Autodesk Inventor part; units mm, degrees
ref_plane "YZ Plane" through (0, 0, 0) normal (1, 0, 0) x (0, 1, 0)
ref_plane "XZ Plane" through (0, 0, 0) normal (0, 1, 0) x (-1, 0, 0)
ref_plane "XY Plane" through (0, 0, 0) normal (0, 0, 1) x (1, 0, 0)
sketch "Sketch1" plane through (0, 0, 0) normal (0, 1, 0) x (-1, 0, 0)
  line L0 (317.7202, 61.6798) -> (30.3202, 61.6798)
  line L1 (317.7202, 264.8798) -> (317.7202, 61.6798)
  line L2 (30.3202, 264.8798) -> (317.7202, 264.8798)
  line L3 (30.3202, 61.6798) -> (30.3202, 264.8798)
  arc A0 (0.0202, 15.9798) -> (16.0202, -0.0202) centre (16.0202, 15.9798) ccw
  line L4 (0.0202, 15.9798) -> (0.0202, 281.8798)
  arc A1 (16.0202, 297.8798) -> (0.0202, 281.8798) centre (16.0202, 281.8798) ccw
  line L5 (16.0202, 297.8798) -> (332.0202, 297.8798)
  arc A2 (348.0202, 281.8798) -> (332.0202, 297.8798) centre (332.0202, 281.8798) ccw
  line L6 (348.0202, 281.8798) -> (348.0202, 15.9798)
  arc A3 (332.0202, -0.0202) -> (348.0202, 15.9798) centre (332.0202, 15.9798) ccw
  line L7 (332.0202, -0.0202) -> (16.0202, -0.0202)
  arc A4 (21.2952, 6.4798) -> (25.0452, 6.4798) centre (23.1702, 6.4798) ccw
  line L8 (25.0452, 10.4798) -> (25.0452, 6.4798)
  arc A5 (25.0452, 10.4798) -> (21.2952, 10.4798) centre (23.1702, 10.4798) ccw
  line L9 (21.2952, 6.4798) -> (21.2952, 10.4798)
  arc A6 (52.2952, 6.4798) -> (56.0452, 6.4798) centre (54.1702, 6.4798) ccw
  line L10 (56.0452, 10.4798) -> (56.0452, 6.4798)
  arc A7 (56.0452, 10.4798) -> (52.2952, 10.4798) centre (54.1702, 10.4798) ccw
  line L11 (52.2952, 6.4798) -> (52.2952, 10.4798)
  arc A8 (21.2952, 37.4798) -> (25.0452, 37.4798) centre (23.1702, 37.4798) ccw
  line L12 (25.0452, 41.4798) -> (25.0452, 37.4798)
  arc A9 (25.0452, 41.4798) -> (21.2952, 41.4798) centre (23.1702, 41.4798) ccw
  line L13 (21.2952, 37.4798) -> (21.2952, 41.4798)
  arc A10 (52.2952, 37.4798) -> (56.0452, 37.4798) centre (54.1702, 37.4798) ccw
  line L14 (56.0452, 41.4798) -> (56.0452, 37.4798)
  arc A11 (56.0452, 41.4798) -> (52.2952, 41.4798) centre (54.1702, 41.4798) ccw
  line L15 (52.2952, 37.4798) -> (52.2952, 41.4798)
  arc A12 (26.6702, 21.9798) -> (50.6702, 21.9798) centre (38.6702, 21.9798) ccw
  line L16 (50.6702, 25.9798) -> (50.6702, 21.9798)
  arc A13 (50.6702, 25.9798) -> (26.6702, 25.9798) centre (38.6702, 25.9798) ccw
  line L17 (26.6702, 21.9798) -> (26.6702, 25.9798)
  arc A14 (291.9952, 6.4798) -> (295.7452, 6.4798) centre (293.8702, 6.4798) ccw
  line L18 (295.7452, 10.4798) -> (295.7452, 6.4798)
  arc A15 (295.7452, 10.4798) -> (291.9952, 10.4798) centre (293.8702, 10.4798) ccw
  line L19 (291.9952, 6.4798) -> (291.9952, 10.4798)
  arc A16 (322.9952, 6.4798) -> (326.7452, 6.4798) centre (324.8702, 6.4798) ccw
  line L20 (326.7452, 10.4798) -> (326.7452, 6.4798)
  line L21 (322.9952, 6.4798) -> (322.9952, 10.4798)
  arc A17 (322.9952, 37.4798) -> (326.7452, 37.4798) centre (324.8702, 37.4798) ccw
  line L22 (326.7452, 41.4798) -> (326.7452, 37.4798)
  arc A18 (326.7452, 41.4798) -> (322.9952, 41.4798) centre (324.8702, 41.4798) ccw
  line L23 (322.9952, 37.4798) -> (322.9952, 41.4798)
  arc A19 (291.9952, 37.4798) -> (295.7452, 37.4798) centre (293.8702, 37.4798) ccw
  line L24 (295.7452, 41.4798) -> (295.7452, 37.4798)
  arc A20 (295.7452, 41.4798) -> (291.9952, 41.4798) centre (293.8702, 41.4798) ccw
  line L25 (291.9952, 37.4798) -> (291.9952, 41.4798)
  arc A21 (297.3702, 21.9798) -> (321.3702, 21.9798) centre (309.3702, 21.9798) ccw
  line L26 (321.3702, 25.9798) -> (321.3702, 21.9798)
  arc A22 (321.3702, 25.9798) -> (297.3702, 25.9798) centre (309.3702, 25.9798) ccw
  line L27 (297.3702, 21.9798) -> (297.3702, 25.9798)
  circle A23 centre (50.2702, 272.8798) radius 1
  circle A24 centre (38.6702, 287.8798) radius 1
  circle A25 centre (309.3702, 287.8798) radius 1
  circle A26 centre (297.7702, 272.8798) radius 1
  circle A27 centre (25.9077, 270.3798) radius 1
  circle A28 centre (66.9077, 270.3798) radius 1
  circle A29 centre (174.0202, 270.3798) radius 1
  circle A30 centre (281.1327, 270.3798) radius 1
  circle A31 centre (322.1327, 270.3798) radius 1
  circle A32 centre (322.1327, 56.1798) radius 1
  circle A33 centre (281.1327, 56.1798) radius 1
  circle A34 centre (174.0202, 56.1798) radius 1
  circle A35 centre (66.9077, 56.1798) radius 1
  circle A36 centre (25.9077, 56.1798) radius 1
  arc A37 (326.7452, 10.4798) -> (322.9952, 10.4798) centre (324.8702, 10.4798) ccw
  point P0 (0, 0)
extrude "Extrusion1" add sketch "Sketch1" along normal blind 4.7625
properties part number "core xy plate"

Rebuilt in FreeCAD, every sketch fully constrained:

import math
import FreeCAD as App
import Part
import Sketcher
from FreeCAD import Vector

doc = App.newDocument("Part")
body = doc.addObject("PartDesign::Body", "Body")

# Sketch on XZ plane
sketch1 = body.newObject("Sketcher::SketchObject", "Sketch")
sketch1.AttachmentSupport = (doc.getObject("XZ_Plane"), [""])
sketch1.MapMode = "FlatFace"
sketch1.addGeometry([
    Part.LineSegment(Vector(0, 281.9, 0), Vector(0, 16, 0)),  # 0
    Part.ArcOfCircle(Part.Circle(Vector(-16, 16, 0), Vector(0, 0, 1), 16), math.radians(-90), math.radians(0)),  # 1
    Part.LineSegment(Vector(-16, 0, 0), Vector(-332, 0, 0)),  # 2
    Part.ArcOfCircle(Part.Circle(Vector(-332, 16, 0), Vector(0, 0, 1), 16), math.radians(180), math.radians(270)),  # 3
    Part.LineSegment(Vector(-348, 16, 0), Vector(-348, 281.9, 0)),  # 4
    Part.ArcOfCircle(Part.Circle(Vector(-332, 281.9, 0), Vector(0, 0, 1), 16), math.radians(90), math.radians(180)),  # 5
    Part.LineSegment(Vector(-332, 297.9, 0), Vector(-16, 297.9, 0)),  # 6
    Part.ArcOfCircle(Part.Circle(Vector(-16, 281.9, 0), Vector(0, 0, 1), 16), math.radians(0), math.radians(90)),  # 7
    Part.ArcOfCircle(Part.Circle(Vector(-23.2, 6.5, 0), Vector(0, 0, 1), 1.9), math.radians(180), math.radians(360)),  # 8
    Part.LineSegment(Vector(-21.3, 6.5, 0), Vector(-21.3, 10.5, 0)),  # 9
    Part.ArcOfCircle(Part.Circle(Vector(-23.2, 10.5, 0), Vector(0, 0, 1), 1.9), math.radians(0), math.radians(180)),  # 10
    Part.LineSegment(Vector(-25, 10.5, 0), Vector(-25, 6.5, 0)),  # 11
    Part.ArcOfCircle(Part.Circle(Vector(-38.7, 22, 0), Vector(0, 0, 1), 12), math.radians(180), math.radians(360)),  # 12
    Part.LineSegment(Vector(-26.7, 22, 0), Vector(-26.7, 26, 0)),  # 13
    Part.ArcOfCircle(Part.Circle(Vector(-38.7, 26, 0), Vector(0, 0, 1), 12), math.radians(0), math.radians(180)),  # 14
    Part.LineSegment(Vector(-50.7, 26, 0), Vector(-50.7, 22, 0)),  # 15
    Part.ArcOfCircle(Part.Circle(Vector(-54.2, 6.5, 0), Vector(0, 0, 1), 1.9), math.radians(180), math.radians(360)),  # 16
    Part.LineSegment(Vector(-52.3, 6.5, 0), Vector(-52.3, 10.5, 0)),  # 17
    Part.ArcOfCircle(Part.Circle(Vector(-54.2, 10.5, 0), Vector(0, 0, 1), 1.9), math.radians(0), math.radians(180)),  # 18
    Part.LineSegment(Vector(-56, 10.5, 0), Vector(-56, 6.5, 0)),  # 19
    Part.ArcOfCircle(Part.Circle(Vector(-23.2, 37.5, 0), Vector(0, 0, 1), 1.9), math.radians(180), math.radians(360)),  # 20
    Part.LineSegment(Vector(-21.3, 37.5, 0), Vector(-21.3, 41.5, 0)),  # 21
    Part.ArcOfCircle(Part.Circle(Vector(-23.2, 41.5, 0), Vector(0, 0, 1), 1.9), math.radians(0), math.radians(180)),  # 22
    Part.LineSegment(Vector(-25, 41.5, 0), Vector(-25, 37.5, 0)),  # 23
    Part.Circle(Vector(-25.9, 56.2, 0), Vector(0, 0, 1), 1),  # 24
    Part.ArcOfCircle(Part.Circle(Vector(-54.2, 37.5, 0), Vector(0, 0, 1), 1.9), math.radians(180), math.radians(360)),  # 25
    Part.LineSegment(Vector(-52.3, 37.5, 0), Vector(-52.3, 41.5, 0)),  # 26
    Part.ArcOfCircle(Part.Circle(Vector(-54.2, 41.5, 0), Vector(0, 0, 1), 1.9), math.radians(0), math.radians(180)),  # 27
    Part.LineSegment(Vector(-56, 41.5, 0), Vector(-56, 37.5, 0)),  # 28
    Part.Circle(Vector(-66.9, 56.2, 0), Vector(0, 0, 1), 1),  # 29
    Part.Circle(Vector(-174, 56.2, 0), Vector(0, 0, 1), 1),  # 30
    Part.ArcOfCircle(Part.Circle(Vector(-293.9, 6.5, 0), Vector(0, 0, 1), 1.9), math.radians(180), math.radians(360)),  # 31
    Part.LineSegment(Vector(-292, 6.5, 0), Vector(-292, 10.5, 0)),  # 32
    Part.ArcOfCircle(Part.Circle(Vector(-293.9, 10.5, 0), Vector(0, 0, 1), 1.9), math.radians(0), math.radians(180)),  # 33
    Part.LineSegment(Vector(-295.7, 10.5, 0), Vector(-295.7, 6.5, 0)),  # 34
    Part.ArcOfCircle(Part.Circle(Vector(-324.9, 6.5, 0), Vector(0, 0, 1), 1.9), math.radians(180), math.radians(360)),  # 35
    Part.LineSegment(Vector(-323, 6.5, 0), Vector(-323, 10.5, 0)),  # 36
    Part.ArcOfCircle(Part.Circle(Vector(-324.9, 10.5, 0), Vector(0, 0, 1), 1.9), math.radians(0), math.radians(180)),  # 37
    Part.LineSegment(Vector(-326.7, 10.5, 0), Vector(-326.7, 6.5, 0)),  # 38
    Part.ArcOfCircle(Part.Circle(Vector(-309.4, 22, 0), Vector(0, 0, 1), 12), math.radians(180), math.radians(360)),  # 39
    Part.LineSegment(Vector(-297.4, 22, 0), Vector(-297.4, 26, 0)),  # 40
    Part.ArcOfCircle(Part.Circle(Vector(-309.4, 26, 0), Vector(0, 0, 1), 12), math.radians(0), math.radians(180)),  # 41
    Part.LineSegment(Vector(-321.4, 26, 0), Vector(-321.4, 22, 0)),  # 42
    Part.ArcOfCircle(Part.Circle(Vector(-293.9, 37.5, 0), Vector(0, 0, 1), 1.9), math.radians(180), math.radians(360)),  # 43
    Part.LineSegment(Vector(-292, 37.5, 0), Vector(-292, 41.5, 0)),  # 44
    Part.ArcOfCircle(Part.Circle(Vector(-293.9, 41.5, 0), Vector(0, 0, 1), 1.9), math.radians(0), math.radians(180)),  # 45
    Part.LineSegment(Vector(-295.7, 41.5, 0), Vector(-295.7, 37.5, 0)),  # 46
    Part.Circle(Vector(-281.1, 56.2, 0), Vector(0, 0, 1), 1),  # 47
    Part.ArcOfCircle(Part.Circle(Vector(-324.9, 37.5, 0), Vector(0, 0, 1), 1.9), math.radians(180), math.radians(360)),  # 48
    Part.LineSegment(Vector(-323, 37.5, 0), Vector(-323, 41.5, 0)),  # 49
    Part.ArcOfCircle(Part.Circle(Vector(-324.9, 41.5, 0), Vector(0, 0, 1), 1.9), math.radians(0), math.radians(180)),  # 50
    Part.LineSegment(Vector(-326.7, 41.5, 0), Vector(-326.7, 37.5, 0)),  # 51
    Part.Circle(Vector(-322.1, 56.2, 0), Vector(0, 0, 1), 1),  # 52
    Part.Circle(Vector(-25.9, 270.4, 0), Vector(0, 0, 1), 1),  # 53
    Part.Circle(Vector(-38.7, 287.9, 0), Vector(0, 0, 1), 1),  # 54
    Part.Circle(Vector(-50.3, 272.9, 0), Vector(0, 0, 1), 1),  # 55
    Part.Circle(Vector(-66.9, 270.4, 0), Vector(0, 0, 1), 1),  # 56
    Part.LineSegment(Vector(-317.7, 264.9, 0), Vector(-317.7, 61.7, 0)),  # 57
    Part.LineSegment(Vector(-317.7, 61.7, 0), Vector(-30.3, 61.7, 0)),  # 58
    Part.LineSegment(Vector(-30.3, 61.7, 0), Vector(-30.3, 264.9, 0)),  # 59
    Part.LineSegment(Vector(-30.3, 264.9, 0), Vector(-317.7, 264.9, 0)),  # 60
    Part.Circle(Vector(-174, 270.4, 0), Vector(0, 0, 1), 1),  # 61
    Part.Circle(Vector(-281.1, 270.4, 0), Vector(0, 0, 1), 1),  # 62
    Part.Circle(Vector(-297.8, 272.9, 0), Vector(0, 0, 1), 1),  # 63
    Part.Circle(Vector(-322.1, 270.4, 0), Vector(0, 0, 1), 1),  # 64
    Part.Circle(Vector(-309.4, 287.9, 0), Vector(0, 0, 1), 1),  # 65
], False)
sketch1.addConstraint([
    Sketcher.Constraint("Tangent", 0, 2, 1, 2),
    Sketcher.Constraint("Tangent", 1, 1, 2, 1),
    Sketcher.Constraint("Tangent", 2, 2, 3, 2),
    Sketcher.Constraint("Tangent", 3, 1, 4, 1),
    Sketcher.Constraint("Tangent", 4, 2, 5, 2),
    Sketcher.Constraint("Tangent", 5, 1, 6, 1),
    Sketcher.Constraint("Tangent", 6, 2, 7, 2),
    Sketcher.Constraint("Tangent", 7, 1, 0, 1),
    Sketcher.Constraint("Tangent", 8, 2, 9, 1),
    Sketcher.Constraint("Tangent", 9, 2, 10, 1),
    Sketcher.Constraint("Tangent", 10, 2, 11, 1),
    Sketcher.Constraint("Tangent", 11, 2, 8, 1),
    Sketcher.Constraint("Tangent", 12, 2, 13, 1),
    Sketcher.Constraint("Tangent", 13, 2, 14, 1),
    Sketcher.Constraint("Tangent", 14, 2, 15, 1),
    Sketcher.Constraint("Tangent", 15, 2, 12, 1),
    Sketcher.Constraint("Tangent", 16, 2, 17, 1),
    Sketcher.Constraint("Tangent", 17, 2, 18, 1),
    Sketcher.Constraint("Tangent", 18, 2, 19, 1),
    Sketcher.Constraint("Tangent", 19, 2, 16, 1),
    Sketcher.Constraint("Tangent", 20, 2, 21, 1),
    Sketcher.Constraint("Tangent", 21, 2, 22, 1),
    Sketcher.Constraint("Tangent", 22, 2, 23, 1),
    Sketcher.Constraint("Tangent", 23, 2, 20, 1),
    Sketcher.Constraint("Tangent", 25, 2, 26, 1),
    Sketcher.Constraint("Tangent", 26, 2, 27, 1),
    Sketcher.Constraint("Tangent", 27, 2, 28, 1),
    Sketcher.Constraint("Tangent", 28, 2, 25, 1),
    Sketcher.Constraint("Tangent", 31, 2, 32, 1),
    Sketcher.Constraint("Tangent", 32, 2, 33, 1),
    Sketcher.Constraint("Tangent", 33, 2, 34, 1),
    Sketcher.Constraint("Tangent", 34, 2, 31, 1),
    Sketcher.Constraint("Tangent", 35, 2, 36, 1),
    Sketcher.Constraint("Tangent", 36, 2, 37, 1),
    Sketcher.Constraint("Tangent", 37, 2, 38, 1),
    Sketcher.Constraint("Tangent", 38, 2, 35, 1),
    Sketcher.Constraint("Tangent", 39, 2, 40, 1),
    Sketcher.Constraint("Tangent", 40, 2, 41, 1),
    Sketcher.Constraint("Tangent", 41, 2, 42, 1),
    Sketcher.Constraint("Tangent", 42, 2, 39, 1),
    Sketcher.Constraint("Tangent", 43, 2, 44, 1),
    Sketcher.Constraint("Tangent", 44, 2, 45, 1),
    Sketcher.Constraint("Tangent", 45, 2, 46, 1),
    Sketcher.Constraint("Tangent", 46, 2, 43, 1),
    Sketcher.Constraint("Tangent", 48, 2, 49, 1),
    Sketcher.Constraint("Tangent", 49, 2, 50, 1),
    Sketcher.Constraint("Tangent", 50, 2, 51, 1),
    Sketcher.Constraint("Tangent", 51, 2, 48, 1),
    Sketcher.Constraint("Coincident", 57, 2, 58, 1),
    Sketcher.Constraint("Coincident", 58, 2, 59, 1),
    Sketcher.Constraint("Coincident", 59, 2, 60, 1),
    Sketcher.Constraint("Coincident", 60, 2, 57, 1),
    Sketcher.Constraint("Vertical", 0),
    Sketcher.Constraint("Horizontal", 2),
    Sketcher.Constraint("Vertical", 4),
    Sketcher.Constraint("Horizontal", 6),
    Sketcher.Constraint("Vertical", 9),
    Sketcher.Constraint("Vertical", 11),
    Sketcher.Constraint("Vertical", 13),
    Sketcher.Constraint("Vertical", 15),
    Sketcher.Constraint("Vertical", 17),
    Sketcher.Constraint("Vertical", 19),
    Sketcher.Constraint("Vertical", 21),
    Sketcher.Constraint("Vertical", 23),
    Sketcher.Constraint("Vertical", 26),
    Sketcher.Constraint("Vertical", 28),
    Sketcher.Constraint("Vertical", 32),
    Sketcher.Constraint("Vertical", 34),
    Sketcher.Constraint("Vertical", 36),
    Sketcher.Constraint("Vertical", 38),
    Sketcher.Constraint("Vertical", 40),
    Sketcher.Constraint("Vertical", 42),
    Sketcher.Constraint("Vertical", 44),
    Sketcher.Constraint("Vertical", 46),
    Sketcher.Constraint("Vertical", 49),
    Sketcher.Constraint("Vertical", 51),
    Sketcher.Constraint("Vertical", 57),
    Sketcher.Constraint("Horizontal", 58),
    Sketcher.Constraint("Vertical", 59),
    Sketcher.Constraint("Horizontal", 60),
    Sketcher.Constraint("Equal", 1, 3),
    Sketcher.Constraint("Equal", 3, 5),
    Sketcher.Constraint("Equal", 5, 7),
    Sketcher.Constraint("Equal", 10, 16),
    Sketcher.Constraint("Equal", 18, 20),
    Sketcher.Constraint("Equal", 22, 25),
    Sketcher.Constraint("Equal", 24, 29),
    Sketcher.Constraint("Equal", 29, 30),
    Sketcher.Constraint("Equal", 27, 31),
    Sketcher.Constraint("Equal", 33, 35),
    Sketcher.Constraint("Equal", 14, 39),
    Sketcher.Constraint("Equal", 37, 43),
    Sketcher.Constraint("Equal", 30, 47),
    Sketcher.Constraint("Equal", 45, 48),
    Sketcher.Constraint("Equal", 47, 52),
    Sketcher.Constraint("Equal", 52, 53),
    Sketcher.Constraint("Equal", 53, 54),
    Sketcher.Constraint("Equal", 54, 55),
    Sketcher.Constraint("Equal", 55, 56),
    Sketcher.Constraint("Equal", 56, 61),
    Sketcher.Constraint("Equal", 61, 62),
    Sketcher.Constraint("Equal", 62, 63),
    Sketcher.Constraint("Equal", 63, 64),
    Sketcher.Constraint("Equal", 64, 65),
    Sketcher.Constraint("Horizontal", 8, 3, 16, 3),
    Sketcher.Constraint("Horizontal", 10, 3, 18, 3),
    Sketcher.Constraint("Horizontal", 20, 3, 25, 3),
    Sketcher.Constraint("Horizontal", 22, 3, 27, 3),
    Sketcher.Constraint("Horizontal", 24, 3, 29, 3),
    Sketcher.Constraint("Horizontal", 29, 3, 30, 3),
    Sketcher.Constraint("Horizontal", 16, 3, 31, 3),
    Sketcher.Constraint("Horizontal", 18, 3, 33, 3),
    Sketcher.Constraint("Horizontal", 31, 3, 35, 3),
    Sketcher.Constraint("Horizontal", 33, 3, 37, 3),
    Sketcher.Constraint("Horizontal", 12, 3, 39, 3),
    Sketcher.Constraint("Horizontal", 14, 3, 41, 3),
    Sketcher.Constraint("Horizontal", 25, 3, 43, 3),
    Sketcher.Constraint("Horizontal", 27, 3, 45, 3),
    Sketcher.Constraint("Horizontal", 30, 3, 47, 3),
    Sketcher.Constraint("Horizontal", 43, 3, 48, 3),
    Sketcher.Constraint("Horizontal", 45, 3, 50, 3),
    Sketcher.Constraint("Horizontal", 47, 3, 52, 3),
    Sketcher.Constraint("Horizontal", 53, 3, 56, 3),
    Sketcher.Constraint("Horizontal", 56, 3, 61, 3),
    Sketcher.Constraint("Horizontal", 61, 3, 62, 3),
    Sketcher.Constraint("Horizontal", 55, 3, 63, 3),
    Sketcher.Constraint("Horizontal", 62, 3, 64, 3),
    Sketcher.Constraint("Horizontal", 54, 3, 65, 3),
    Sketcher.Constraint("Vertical", 10, 3, 20, 3),
    Sketcher.Constraint("Vertical", 18, 3, 25, 3),
    Sketcher.Constraint("Vertical", 33, 3, 43, 3),
    Sketcher.Constraint("Vertical", 37, 3, 48, 3),
    Sketcher.Constraint("Vertical", 24, 3, 53, 3),
    Sketcher.Constraint("Vertical", 14, 3, 54, 3),
    Sketcher.Constraint("Vertical", 29, 3, 56, 3),
    Sketcher.Constraint("Vertical", 30, 3, 61, 3),
    Sketcher.Constraint("Vertical", 47, 3, 62, 3),
    Sketcher.Constraint("Vertical", 52, 3, 64, 3),
    Sketcher.Constraint("Vertical", 41, 3, 65, 3),
    Sketcher.Constraint("Equal", 11, 13),
    Sketcher.Constraint("Equal", 19, 21),
    Sketcher.Constraint("Diameter", 24, 2.0),
    Sketcher.Constraint("Radius", 1, 16.0),
    Sketcher.Constraint("Radius", 12, 12.0),
    Sketcher.Constraint("DistanceX", 2, 2, 2, 1, 316.0),
    Sketcher.Constraint("DistanceY", 9, 1, 9, 2, 4.0),
    Sketcher.Constraint("DistanceX", 58, 1, 58, 2, 287.4),
    Sketcher.Constraint("DistanceY", 0, 2, 0, 1, 265.9),
    Sketcher.Constraint("DistanceY", 57, 2, 57, 1, 203.2),
    Sketcher.Constraint("Radius", 8, 1.875),
    Sketcher.Constraint("DistanceX", 1, 3, -1, 1, 16.0202),
    Sketcher.Constraint("DistanceY", -1, 1, 1, 3, 15.9798),
    Sketcher.Constraint("DistanceX", 8, 3, -1, 1, 23.1702),
    Sketcher.Constraint("DistanceY", -1, 1, 8, 3, 6.4798),
    Sketcher.Constraint("DistanceX", 12, 3, -1, 1, 38.6702),
    Sketcher.Constraint("DistanceY", -1, 1, 12, 3, 21.9798),
    Sketcher.Constraint("DistanceX", 16, 3, -1, 1, 54.1702),
    Sketcher.Constraint("DistanceY", -1, 1, 20, 3, 37.4798),
    Sketcher.Constraint("DistanceX", 24, 3, -1, 1, 25.9077),
    Sketcher.Constraint("DistanceY", -1, 1, 24, 3, 56.1798),
    Sketcher.Constraint("DistanceX", 29, 3, -1, 1, 66.9077),
    Sketcher.Constraint("DistanceX", 30, 3, -1, 1, 174.0202),
    Sketcher.Constraint("DistanceX", 31, 3, -1, 1, 293.8702),
    Sketcher.Constraint("DistanceX", 35, 3, -1, 1, 324.8702),
    Sketcher.Constraint("DistanceX", 39, 3, -1, 1, 309.3702),
    Sketcher.Constraint("DistanceX", 47, 3, -1, 1, 281.1327),
    Sketcher.Constraint("DistanceX", 52, 3, -1, 1, 322.1327),
    Sketcher.Constraint("DistanceY", -1, 1, 53, 3, 270.3798),
    Sketcher.Constraint("DistanceY", -1, 1, 54, 3, 287.8798),
    Sketcher.Constraint("DistanceX", 55, 3, -1, 1, 50.2702),
    Sketcher.Constraint("DistanceY", -1, 1, 55, 3, 272.8798),
    Sketcher.Constraint("DistanceX", 63, 3, -1, 1, 297.7702),
    Sketcher.Constraint("DistanceX", 57, 2, -1, 1, 317.7202),
    Sketcher.Constraint("DistanceY", -1, 1, 57, 2, 61.6798),
])
pad1 = body.newObject("PartDesign::Pad", "Pad")
pad1.Profile = sketch1
pad1.Length = 4.7625
pad1.Reversed = True

doc.recompute()
